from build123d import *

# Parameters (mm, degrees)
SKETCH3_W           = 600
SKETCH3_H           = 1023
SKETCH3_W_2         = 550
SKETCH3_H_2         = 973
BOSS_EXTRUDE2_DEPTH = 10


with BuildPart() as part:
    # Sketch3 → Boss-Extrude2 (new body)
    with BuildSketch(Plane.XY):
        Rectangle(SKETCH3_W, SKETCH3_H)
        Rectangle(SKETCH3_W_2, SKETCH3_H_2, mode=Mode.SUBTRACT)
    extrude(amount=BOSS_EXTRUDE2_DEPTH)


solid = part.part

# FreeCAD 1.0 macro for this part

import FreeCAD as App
import Part
import Sketcher

V = App.Vector

doc = App.newDocument("Part")
body = doc.addObject("PartDesign::Body", "Body")

sketch1 = body.newObject("Sketcher::SketchObject", "Sketch")
sketch1.AttachmentSupport = (doc.getObject("XY_Plane"), [""])
sketch1.MapMode = "FlatFace"
sketch1.addGeometry([
    Part.LineSegment(V(-300, 511.5, 0), V(-300, -511.5, 0)),
    Part.LineSegment(V(-300, -511.5, 0), V(300, -511.5, 0)),
    Part.LineSegment(V(300, -511.5, 0), V(300, 511.5, 0)),
    Part.LineSegment(V(300, 511.5, 0), V(-300, 511.5, 0)),
    Part.LineSegment(V(275, -486.5, 0), V(-275, -486.5, 0)),
    Part.LineSegment(V(-275, -486.5, 0), V(-275, 486.5, 0)),
    Part.LineSegment(V(-275, 486.5, 0), V(275, 486.5, 0)),
    Part.LineSegment(V(275, 486.5, 0), V(275, -486.5, 0)),
], False)
sketch1.addConstraint([
    Sketcher.Constraint("Coincident", 0, 2, 1, 1),
    Sketcher.Constraint("Coincident", 1, 2, 2, 1),
    Sketcher.Constraint("Coincident", 2, 2, 3, 1),
    Sketcher.Constraint("Coincident", 3, 2, 0, 1),
    Sketcher.Constraint("Coincident", 4, 2, 5, 1),
    Sketcher.Constraint("Coincident", 5, 2, 6, 1),
    Sketcher.Constraint("Coincident", 6, 2, 7, 1),
    Sketcher.Constraint("Coincident", 7, 2, 4, 1),
    Sketcher.Constraint("Vertical", 0),
    Sketcher.Constraint("Horizontal", 1),
    Sketcher.Constraint("Vertical", 2),
    Sketcher.Constraint("Horizontal", 3),
    Sketcher.Constraint("Horizontal", 4),
    Sketcher.Constraint("Vertical", 5),
    Sketcher.Constraint("Horizontal", 6),
    Sketcher.Constraint("Vertical", 7),
    Sketcher.Constraint("Symmetric", 0, 2, 2, 2, -1, 1),
    Sketcher.Constraint("Symmetric", 4, 2, 6, 2, -1, 1),
    Sketcher.Constraint("DistanceX", 1, 1, 1, 2, 600.0),
    Sketcher.Constraint("DistanceX", 4, 2, 4, 1, 550.0),
    Sketcher.Constraint("DistanceY", 0, 2, 0, 1, 1023.0),
    Sketcher.Constraint("DistanceY", 5, 1, 5, 2, 973.0),
])
pad1 = body.newObject("PartDesign::Pad", "Pad")
pad1.Profile = sketch1
pad1.Length = 10

doc.recompute()
